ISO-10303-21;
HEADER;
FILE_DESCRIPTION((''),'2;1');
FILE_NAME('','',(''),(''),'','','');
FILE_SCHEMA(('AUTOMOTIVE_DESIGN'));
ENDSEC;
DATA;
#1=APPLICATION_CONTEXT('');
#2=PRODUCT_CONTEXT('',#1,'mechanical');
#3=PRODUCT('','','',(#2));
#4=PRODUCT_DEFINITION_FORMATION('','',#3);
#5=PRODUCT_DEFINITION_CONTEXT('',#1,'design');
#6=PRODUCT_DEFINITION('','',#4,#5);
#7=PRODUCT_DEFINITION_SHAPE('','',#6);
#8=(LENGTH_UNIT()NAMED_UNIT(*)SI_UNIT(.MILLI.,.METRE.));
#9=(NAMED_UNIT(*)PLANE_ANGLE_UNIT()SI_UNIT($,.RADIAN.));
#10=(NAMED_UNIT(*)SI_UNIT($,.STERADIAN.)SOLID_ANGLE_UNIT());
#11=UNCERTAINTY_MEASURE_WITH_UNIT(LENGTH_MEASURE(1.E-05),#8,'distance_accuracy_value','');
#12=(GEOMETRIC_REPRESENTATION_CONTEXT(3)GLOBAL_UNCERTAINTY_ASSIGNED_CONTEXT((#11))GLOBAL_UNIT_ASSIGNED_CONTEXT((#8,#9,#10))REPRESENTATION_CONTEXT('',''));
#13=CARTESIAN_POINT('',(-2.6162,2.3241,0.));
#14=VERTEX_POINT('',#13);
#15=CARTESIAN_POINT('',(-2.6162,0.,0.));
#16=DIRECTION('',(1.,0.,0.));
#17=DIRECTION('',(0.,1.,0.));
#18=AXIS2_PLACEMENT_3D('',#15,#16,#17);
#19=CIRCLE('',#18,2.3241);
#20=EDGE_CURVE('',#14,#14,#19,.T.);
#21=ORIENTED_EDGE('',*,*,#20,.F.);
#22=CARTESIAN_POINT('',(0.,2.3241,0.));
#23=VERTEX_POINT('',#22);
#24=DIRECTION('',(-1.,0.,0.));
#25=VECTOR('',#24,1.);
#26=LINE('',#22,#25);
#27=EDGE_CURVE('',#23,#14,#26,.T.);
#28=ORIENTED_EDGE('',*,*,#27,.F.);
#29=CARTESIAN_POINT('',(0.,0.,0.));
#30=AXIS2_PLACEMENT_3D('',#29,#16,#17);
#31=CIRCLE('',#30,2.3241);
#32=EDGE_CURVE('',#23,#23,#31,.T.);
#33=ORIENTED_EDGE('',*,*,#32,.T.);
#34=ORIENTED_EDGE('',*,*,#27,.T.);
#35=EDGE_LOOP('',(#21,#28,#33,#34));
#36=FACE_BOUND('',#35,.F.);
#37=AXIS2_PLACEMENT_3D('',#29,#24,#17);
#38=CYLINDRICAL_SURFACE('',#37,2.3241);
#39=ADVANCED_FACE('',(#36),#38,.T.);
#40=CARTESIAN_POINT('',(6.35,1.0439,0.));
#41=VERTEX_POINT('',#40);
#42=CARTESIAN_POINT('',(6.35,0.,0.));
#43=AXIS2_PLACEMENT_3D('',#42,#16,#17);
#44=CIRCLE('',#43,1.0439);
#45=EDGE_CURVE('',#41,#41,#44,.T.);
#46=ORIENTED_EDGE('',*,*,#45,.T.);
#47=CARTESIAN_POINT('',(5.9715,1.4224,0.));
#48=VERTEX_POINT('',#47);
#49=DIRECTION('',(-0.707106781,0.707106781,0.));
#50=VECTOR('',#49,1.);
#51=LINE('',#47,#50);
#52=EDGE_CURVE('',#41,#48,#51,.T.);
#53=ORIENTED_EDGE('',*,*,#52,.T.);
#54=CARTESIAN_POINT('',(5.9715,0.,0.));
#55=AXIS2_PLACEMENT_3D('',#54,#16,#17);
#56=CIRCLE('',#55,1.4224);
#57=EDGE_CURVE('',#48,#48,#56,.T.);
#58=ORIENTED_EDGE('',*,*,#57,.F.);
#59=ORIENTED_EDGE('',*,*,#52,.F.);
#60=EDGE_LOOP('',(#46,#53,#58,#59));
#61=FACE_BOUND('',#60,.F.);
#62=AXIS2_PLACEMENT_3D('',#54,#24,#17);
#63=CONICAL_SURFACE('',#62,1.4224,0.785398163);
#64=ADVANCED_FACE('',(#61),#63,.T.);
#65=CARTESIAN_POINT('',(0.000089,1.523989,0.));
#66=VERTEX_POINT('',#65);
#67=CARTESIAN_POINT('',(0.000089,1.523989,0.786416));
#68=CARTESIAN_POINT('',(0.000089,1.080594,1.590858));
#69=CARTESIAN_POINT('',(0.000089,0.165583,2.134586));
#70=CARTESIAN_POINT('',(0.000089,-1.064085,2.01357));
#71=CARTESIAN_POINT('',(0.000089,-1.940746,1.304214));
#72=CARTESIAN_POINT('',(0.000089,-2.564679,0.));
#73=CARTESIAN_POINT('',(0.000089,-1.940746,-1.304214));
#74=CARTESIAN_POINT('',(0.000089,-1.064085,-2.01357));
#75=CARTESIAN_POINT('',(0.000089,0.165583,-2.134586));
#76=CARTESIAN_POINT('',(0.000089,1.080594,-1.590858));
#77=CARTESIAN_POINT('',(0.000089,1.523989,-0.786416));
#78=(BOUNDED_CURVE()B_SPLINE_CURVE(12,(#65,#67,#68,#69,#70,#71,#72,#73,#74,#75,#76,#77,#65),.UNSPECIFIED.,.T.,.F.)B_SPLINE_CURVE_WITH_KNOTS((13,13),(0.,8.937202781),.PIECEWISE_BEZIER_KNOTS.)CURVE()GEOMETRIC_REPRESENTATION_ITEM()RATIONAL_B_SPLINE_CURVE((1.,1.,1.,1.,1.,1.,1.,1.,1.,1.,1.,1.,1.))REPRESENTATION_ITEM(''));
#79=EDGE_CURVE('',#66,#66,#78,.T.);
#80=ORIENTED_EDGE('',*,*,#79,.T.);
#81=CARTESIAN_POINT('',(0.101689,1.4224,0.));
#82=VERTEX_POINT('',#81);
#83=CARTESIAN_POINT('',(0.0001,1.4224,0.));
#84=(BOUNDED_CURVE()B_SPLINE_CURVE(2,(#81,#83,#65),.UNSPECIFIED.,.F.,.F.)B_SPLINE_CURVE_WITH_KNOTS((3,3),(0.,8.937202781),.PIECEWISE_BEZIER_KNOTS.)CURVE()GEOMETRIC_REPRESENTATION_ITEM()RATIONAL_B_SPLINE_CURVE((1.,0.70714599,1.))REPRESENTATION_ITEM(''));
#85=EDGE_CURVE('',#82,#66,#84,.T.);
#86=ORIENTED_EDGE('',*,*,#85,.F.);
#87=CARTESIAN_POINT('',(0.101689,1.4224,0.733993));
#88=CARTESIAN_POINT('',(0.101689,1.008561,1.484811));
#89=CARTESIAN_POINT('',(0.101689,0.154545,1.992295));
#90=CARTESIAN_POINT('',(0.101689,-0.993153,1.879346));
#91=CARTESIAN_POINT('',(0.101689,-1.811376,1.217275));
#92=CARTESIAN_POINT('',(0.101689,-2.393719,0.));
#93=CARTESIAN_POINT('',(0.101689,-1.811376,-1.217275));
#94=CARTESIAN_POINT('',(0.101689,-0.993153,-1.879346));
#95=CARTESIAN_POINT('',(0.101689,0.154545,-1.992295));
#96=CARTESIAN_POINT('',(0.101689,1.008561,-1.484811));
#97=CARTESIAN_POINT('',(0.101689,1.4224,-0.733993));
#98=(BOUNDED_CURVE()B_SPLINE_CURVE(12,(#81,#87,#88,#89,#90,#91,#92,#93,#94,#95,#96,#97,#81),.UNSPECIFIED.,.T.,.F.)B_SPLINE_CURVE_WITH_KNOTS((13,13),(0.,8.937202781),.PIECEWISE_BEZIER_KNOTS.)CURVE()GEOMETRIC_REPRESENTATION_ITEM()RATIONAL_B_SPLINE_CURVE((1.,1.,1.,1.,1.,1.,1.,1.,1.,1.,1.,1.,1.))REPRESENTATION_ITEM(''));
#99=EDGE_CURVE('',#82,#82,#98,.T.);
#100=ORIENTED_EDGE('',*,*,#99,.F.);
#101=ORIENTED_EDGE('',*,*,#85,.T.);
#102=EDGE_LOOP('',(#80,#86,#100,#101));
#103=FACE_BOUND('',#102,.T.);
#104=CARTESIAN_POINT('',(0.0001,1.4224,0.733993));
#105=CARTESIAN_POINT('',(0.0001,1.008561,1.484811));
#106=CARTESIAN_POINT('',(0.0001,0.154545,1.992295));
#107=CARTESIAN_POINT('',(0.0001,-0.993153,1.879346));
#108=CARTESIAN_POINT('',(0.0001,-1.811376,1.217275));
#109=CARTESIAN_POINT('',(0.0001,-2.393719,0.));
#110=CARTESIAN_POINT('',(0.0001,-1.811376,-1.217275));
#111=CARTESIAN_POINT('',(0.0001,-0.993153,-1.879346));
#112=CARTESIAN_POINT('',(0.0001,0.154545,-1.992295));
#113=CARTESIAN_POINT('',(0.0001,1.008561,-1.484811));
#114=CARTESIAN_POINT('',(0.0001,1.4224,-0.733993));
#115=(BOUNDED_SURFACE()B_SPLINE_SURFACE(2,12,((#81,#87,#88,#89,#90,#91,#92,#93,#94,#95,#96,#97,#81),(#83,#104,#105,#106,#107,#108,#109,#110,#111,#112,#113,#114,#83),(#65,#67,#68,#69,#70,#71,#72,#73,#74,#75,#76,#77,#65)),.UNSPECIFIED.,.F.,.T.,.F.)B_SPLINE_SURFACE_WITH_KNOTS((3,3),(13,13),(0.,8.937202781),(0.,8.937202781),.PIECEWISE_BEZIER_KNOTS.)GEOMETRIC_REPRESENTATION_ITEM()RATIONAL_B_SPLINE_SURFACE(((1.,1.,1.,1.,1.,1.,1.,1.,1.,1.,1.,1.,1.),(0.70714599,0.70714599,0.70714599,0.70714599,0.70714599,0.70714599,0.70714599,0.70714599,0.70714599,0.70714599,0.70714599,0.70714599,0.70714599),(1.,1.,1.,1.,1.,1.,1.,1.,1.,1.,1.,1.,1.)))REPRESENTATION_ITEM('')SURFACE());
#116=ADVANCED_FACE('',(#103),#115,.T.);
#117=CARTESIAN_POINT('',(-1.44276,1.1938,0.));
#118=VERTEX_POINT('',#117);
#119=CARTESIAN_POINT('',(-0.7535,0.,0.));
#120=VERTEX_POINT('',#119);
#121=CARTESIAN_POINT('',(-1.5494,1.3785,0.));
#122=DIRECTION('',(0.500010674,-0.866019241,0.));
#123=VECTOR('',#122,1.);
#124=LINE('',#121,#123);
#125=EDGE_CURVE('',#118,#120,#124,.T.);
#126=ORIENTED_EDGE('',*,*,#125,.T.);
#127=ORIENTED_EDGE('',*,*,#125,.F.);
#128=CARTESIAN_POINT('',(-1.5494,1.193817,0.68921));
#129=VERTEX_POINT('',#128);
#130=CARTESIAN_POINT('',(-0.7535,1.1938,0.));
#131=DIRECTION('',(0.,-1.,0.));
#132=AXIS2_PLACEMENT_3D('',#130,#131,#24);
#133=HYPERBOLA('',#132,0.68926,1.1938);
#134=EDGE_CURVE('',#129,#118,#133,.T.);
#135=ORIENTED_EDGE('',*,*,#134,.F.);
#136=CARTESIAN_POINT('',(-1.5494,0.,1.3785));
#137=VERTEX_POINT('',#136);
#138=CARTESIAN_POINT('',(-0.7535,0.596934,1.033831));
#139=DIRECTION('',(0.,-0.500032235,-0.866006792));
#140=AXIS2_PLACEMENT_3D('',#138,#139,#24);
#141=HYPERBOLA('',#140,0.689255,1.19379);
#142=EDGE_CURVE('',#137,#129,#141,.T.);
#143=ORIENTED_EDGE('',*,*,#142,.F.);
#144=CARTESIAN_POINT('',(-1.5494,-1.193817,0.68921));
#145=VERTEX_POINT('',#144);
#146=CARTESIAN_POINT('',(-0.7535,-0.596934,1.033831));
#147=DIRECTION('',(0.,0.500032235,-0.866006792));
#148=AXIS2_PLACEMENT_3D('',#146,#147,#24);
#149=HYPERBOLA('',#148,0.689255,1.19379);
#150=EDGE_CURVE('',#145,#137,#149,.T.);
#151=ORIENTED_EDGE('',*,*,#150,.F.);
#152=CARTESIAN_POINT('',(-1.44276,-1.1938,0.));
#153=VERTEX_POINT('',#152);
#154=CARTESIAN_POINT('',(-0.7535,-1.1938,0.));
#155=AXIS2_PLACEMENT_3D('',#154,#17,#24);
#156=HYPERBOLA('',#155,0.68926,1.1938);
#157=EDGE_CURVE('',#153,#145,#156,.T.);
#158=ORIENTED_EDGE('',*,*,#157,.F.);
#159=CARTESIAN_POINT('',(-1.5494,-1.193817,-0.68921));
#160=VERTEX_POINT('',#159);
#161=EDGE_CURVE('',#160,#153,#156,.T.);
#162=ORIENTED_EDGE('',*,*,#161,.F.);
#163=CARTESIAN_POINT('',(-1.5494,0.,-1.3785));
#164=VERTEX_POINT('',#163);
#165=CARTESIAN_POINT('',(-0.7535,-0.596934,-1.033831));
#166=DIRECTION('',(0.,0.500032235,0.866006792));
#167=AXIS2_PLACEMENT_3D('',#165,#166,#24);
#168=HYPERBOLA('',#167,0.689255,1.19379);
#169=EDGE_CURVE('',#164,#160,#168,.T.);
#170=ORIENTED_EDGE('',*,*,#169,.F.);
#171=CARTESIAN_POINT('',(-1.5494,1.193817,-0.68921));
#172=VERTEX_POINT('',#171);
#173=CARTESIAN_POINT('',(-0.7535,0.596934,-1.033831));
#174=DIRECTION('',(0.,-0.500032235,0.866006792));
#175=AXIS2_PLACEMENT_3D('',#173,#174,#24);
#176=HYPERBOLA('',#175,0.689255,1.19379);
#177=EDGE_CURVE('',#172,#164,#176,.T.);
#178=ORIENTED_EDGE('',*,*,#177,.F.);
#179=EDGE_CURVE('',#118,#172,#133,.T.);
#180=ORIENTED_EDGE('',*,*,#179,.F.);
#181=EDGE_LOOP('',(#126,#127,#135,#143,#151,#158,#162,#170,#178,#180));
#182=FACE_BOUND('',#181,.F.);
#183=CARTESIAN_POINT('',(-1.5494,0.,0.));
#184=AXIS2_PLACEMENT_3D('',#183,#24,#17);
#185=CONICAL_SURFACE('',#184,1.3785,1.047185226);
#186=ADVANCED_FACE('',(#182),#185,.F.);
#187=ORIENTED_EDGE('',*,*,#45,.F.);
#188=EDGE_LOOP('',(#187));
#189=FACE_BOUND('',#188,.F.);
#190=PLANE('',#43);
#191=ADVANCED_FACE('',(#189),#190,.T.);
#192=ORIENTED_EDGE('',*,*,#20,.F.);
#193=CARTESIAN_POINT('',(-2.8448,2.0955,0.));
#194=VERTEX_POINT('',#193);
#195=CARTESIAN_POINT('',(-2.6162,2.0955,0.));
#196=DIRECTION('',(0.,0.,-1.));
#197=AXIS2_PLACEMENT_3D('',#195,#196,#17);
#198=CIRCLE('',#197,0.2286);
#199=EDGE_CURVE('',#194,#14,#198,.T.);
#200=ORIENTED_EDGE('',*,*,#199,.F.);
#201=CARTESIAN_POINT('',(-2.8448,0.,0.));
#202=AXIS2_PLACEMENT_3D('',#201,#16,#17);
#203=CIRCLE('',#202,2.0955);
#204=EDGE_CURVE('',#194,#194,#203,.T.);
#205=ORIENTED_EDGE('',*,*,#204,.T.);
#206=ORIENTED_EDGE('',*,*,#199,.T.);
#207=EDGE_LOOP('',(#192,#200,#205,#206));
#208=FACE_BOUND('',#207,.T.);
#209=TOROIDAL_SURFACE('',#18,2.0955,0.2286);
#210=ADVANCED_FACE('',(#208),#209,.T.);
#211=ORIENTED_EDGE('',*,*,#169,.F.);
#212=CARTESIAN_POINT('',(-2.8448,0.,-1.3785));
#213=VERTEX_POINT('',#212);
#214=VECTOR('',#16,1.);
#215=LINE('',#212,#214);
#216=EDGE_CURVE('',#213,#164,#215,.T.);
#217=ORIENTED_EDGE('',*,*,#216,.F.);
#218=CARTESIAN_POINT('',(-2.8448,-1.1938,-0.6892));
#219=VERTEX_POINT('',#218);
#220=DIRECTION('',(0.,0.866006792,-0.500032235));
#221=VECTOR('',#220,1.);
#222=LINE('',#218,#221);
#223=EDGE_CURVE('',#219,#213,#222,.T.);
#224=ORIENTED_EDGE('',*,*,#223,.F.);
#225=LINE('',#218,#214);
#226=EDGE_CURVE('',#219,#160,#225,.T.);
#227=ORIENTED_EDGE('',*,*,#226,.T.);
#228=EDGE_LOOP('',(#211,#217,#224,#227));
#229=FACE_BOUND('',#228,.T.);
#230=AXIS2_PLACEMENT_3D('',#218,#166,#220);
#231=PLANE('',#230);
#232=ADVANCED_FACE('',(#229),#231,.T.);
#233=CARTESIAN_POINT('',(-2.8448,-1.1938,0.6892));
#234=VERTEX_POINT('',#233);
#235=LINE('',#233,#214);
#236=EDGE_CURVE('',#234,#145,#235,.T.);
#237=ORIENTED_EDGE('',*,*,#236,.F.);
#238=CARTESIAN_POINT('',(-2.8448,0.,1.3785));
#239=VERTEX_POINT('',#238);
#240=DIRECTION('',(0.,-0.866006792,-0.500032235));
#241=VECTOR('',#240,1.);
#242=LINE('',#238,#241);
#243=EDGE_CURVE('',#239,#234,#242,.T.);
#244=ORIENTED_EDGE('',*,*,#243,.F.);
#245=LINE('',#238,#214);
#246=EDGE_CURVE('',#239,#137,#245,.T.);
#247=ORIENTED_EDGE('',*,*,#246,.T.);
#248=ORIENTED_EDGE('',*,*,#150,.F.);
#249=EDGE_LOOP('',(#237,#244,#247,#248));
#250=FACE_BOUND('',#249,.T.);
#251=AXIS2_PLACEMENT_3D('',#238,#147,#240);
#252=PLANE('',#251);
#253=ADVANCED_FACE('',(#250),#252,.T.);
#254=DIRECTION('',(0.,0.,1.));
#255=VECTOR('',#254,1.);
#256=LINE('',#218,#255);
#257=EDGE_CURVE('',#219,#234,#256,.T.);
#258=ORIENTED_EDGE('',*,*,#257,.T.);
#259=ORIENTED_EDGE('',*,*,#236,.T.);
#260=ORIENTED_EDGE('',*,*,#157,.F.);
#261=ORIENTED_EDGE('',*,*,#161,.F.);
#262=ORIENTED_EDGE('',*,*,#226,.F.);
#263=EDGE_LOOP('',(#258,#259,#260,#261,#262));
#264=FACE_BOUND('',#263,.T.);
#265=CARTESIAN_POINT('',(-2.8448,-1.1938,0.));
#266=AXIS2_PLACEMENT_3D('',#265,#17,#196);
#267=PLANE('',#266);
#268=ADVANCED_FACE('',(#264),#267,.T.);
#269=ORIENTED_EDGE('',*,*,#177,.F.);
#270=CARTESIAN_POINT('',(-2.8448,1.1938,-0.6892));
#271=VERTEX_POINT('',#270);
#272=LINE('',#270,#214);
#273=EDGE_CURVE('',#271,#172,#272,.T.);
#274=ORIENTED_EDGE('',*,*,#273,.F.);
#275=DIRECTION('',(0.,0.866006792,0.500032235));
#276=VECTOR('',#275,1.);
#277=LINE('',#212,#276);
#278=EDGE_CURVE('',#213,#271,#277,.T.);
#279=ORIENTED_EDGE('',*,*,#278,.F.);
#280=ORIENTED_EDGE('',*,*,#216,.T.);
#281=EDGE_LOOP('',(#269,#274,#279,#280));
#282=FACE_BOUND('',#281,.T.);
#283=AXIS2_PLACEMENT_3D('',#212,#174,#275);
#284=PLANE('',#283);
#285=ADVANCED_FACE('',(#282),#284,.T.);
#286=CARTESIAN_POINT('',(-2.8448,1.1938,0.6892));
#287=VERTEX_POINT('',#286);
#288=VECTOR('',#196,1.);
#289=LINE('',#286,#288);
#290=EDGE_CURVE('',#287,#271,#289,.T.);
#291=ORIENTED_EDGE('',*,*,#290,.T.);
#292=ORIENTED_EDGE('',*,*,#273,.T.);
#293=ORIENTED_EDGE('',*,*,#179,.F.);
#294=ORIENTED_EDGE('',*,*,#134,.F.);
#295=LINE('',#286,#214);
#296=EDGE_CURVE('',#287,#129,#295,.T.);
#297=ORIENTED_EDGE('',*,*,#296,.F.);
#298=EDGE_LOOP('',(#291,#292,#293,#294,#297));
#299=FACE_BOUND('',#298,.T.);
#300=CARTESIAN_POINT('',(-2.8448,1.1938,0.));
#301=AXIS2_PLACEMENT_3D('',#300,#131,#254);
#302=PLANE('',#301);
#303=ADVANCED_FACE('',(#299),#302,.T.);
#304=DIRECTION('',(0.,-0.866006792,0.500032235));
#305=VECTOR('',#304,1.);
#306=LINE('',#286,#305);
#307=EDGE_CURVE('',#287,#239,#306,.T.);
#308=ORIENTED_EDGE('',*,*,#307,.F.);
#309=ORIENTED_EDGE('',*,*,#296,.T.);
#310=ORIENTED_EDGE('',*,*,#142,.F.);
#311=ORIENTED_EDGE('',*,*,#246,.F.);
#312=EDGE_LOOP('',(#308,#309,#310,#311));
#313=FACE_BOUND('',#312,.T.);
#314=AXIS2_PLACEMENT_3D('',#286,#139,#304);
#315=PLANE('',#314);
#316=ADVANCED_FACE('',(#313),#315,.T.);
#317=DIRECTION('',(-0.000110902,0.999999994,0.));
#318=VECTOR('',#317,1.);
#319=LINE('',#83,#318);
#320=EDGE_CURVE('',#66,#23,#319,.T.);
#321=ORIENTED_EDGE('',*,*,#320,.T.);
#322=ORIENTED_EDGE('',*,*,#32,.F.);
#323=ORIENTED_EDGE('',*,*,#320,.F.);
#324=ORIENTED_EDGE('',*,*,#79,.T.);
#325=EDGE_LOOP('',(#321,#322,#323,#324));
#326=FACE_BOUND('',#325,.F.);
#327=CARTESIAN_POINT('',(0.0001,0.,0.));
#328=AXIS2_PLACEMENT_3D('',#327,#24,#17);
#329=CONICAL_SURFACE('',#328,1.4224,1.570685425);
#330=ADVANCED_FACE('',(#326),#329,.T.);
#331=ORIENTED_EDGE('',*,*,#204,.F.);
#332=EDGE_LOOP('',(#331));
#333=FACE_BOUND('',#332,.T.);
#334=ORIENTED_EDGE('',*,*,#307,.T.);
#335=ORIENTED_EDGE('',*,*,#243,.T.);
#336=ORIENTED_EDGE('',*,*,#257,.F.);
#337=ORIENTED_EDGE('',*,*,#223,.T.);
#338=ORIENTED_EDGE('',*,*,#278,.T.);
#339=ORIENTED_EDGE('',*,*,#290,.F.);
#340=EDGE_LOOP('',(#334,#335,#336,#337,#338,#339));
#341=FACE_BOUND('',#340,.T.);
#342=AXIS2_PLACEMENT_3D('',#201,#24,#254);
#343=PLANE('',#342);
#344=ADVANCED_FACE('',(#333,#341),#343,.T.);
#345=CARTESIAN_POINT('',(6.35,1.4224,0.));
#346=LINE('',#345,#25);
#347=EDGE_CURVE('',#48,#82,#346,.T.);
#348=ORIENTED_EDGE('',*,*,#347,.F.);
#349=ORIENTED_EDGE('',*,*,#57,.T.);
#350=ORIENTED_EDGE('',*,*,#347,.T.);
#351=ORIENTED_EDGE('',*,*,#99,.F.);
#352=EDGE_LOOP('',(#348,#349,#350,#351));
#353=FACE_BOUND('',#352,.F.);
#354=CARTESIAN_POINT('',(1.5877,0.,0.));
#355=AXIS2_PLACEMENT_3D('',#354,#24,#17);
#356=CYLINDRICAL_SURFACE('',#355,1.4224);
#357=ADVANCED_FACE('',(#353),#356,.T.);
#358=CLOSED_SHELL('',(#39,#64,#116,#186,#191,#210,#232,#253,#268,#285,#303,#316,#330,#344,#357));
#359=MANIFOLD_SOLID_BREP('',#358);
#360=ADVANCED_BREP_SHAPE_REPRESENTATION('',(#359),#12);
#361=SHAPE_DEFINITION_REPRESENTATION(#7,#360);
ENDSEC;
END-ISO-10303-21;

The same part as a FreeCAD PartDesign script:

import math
import FreeCAD as App
import Part
import Sketcher

V = App.Vector
Q = App.Units.Quantity


def edges_at(feature, points):
    """Names of the edges that pass closest to the given points."""
    edges = feature.Shape.Edges
    near = lambda p: min(range(len(edges)), key=lambda i: edges[i].distToShape(Part.Vertex(*p))[0])
    return sorted({f"Edge{near(p) + 1}" for p in points})


def add_polygon(sketch, points):
    """Adds a closed chain of lines whose ends are joined by coincident constraints."""
    first, n = sketch.GeometryCount, len(points)
    for a, b in zip(points, points[1:] + points[:1]):
        sketch.addGeometry(Part.LineSegment(App.Vector(*a, 0), App.Vector(*b, 0)), False)
    for i in range(n):
        sketch.addConstraint(Sketcher.Constraint("Coincident", first + i, 2, first + (i + 1) % n, 1))

doc = App.newDocument("Part")
body = doc.addObject("PartDesign::Body", "Body")

sketch1 = body.newObject("Sketcher::SketchObject", "Sketch")
sketch1.AttachmentSupport = (doc.getObject("XY_Plane"), [""])
sketch1.MapMode = "FlatFace"
add_polygon(sketch1, [(-1.5, 1.4), (-0.8, 0), (6.3, 0), (6.3, 1.4), (0, 1.4), (0, 2.3), (-2.8, 2.3), (-2.8, 1.4)])
sketch1.addConstraint([
    Sketcher.Constraint("Horizontal", 1),
    Sketcher.Constraint("Vertical", 2),
    Sketcher.Constraint("Horizontal", 3),
    Sketcher.Constraint("Vertical", 4),
    Sketcher.Constraint("Horizontal", 5),
    Sketcher.Constraint("Vertical", 6),
    Sketcher.Constraint("Horizontal", 7),
    Sketcher.Constraint("PointOnObject", 0, 2, -1),
    Sketcher.Constraint("PointOnObject", 3, 2, -2),
    Sketcher.Constraint("DistanceX", 3, 2, 3, 1, Q("0.25 in")),
    Sketcher.Constraint("DistanceX", 5, 2, 5, 1, Q("0.112 in")),
    Sketcher.Constraint("DistanceX", 7, 1, 7, 2, Q("0.051 in")),
    Sketcher.Constraint("Angle", 0, Q("-59.9993 deg")),
    Sketcher.Constraint("DistanceY", 2, 1, 2, 2, Q("0.056 in")),
    Sketcher.Constraint("DistanceY", 4, 1, 4, 2, Q("0.0355 in")),
    Sketcher.Constraint("DistanceX", 1, 1, 1, 2, Q("7.1035 mm")),
])
revolution = body.newObject("PartDesign::Revolution", "Revolution")
revolution.Profile = sketch1
revolution.ReferenceAxis = (sketch1, ["H_Axis"])
revolution.Angle = 360

sketch2 = body.newObject("Sketcher::SketchObject", "Sketch001")
sketch2.AttachmentSupport = (doc.getObject("YZ_Plane"), [""])
sketch2.MapMode = "FlatFace"
sketch2.AttachmentOffset = App.Placement(V(0, 0, -0.112 * 25.4), App.Rotation())
sketch2.addGeometry([
    Part.LineSegment(V(1.2, 0.7, 0), V(0, 1.4, 0)),
    Part.ArcOfCircle(Part.Circle(V(0, 0, 0), V(0, 0, 1), 1.4), math.radians(30), math.radians(90)),
    Part.ArcOfCircle(Part.Circle(V(0, 0, 0), V(0, 0, 1), 1.4), math.radians(90), math.radians(150)),
    Part.LineSegment(V(0, 1.4, 0), V(-1.2, 0.7, 0)),
    Part.ArcOfCircle(Part.Circle(V(0, 0, 0), V(0, 0, 1), 1.4), math.radians(-30), math.radians(30)),
    Part.LineSegment(V(1.2, 0.7, 0), V(1.2, -0.7, 0)),
    Part.LineSegment(V(-1.2, 0.7, 0), V(-1.2, -0.7, 0)),
    Part.ArcOfCircle(Part.Circle(V(0, 0, 0), V(0, 0, 1), 1.4), math.radians(150), math.radians(210)),
    Part.LineSegment(V(-1.2, -0.7, 0), V(0, -1.4, 0)),
    Part.ArcOfCircle(Part.Circle(V(0, 0, 0), V(0, 0, 1), 1.4), math.radians(-150), math.radians(-90)),
    Part.ArcOfCircle(Part.Circle(V(0, 0, 0), V(0, 0, 1), 1.4), math.radians(-90), math.radians(-30)),
    Part.LineSegment(V(0, -1.4, 0), V(1.2, -0.7, 0)),
], False)
sketch2.addConstraint([
    Sketcher.Constraint("Coincident", 0, 1, 1, 1),
    Sketcher.Constraint("Coincident", 1, 2, 0, 2),
    Sketcher.Constraint("Coincident", 2, 1, 3, 1),
    Sketcher.Constraint("Coincident", 3, 2, 2, 2),
    Sketcher.Constraint("Coincident", 4, 1, 5, 2),
    Sketcher.Constraint("Coincident", 5, 1, 4, 2),
    Sketcher.Constraint("Coincident", 6, 1, 7, 1),
    Sketcher.Constraint("Coincident", 7, 2, 6, 2),
    Sketcher.Constraint("Coincident", 8, 1, 9, 1),
    Sketcher.Constraint("Coincident", 9, 2, 8, 2),
    Sketcher.Constraint("Coincident", 10, 1, 11, 1),
    Sketcher.Constraint("Coincident", 11, 2, 10, 2),
    Sketcher.Constraint("Vertical", 5),
    Sketcher.Constraint("Vertical", 6),
    Sketcher.Constraint("Coincident", 1, 3, -1, 1),
    Sketcher.Constraint("Coincident", 2, 3, -1, 1),
    Sketcher.Constraint("Coincident", 4, 3, -1, 1),
    Sketcher.Constraint("Coincident", 7, 3, -1, 1),
    Sketcher.Constraint("Coincident", 9, 3, -1, 1),
    Sketcher.Constraint("Coincident", 10, 3, -1, 1),
    Sketcher.Constraint("Coincident", 2, 1, 1, 2),
    Sketcher.Constraint("Coincident", 5, 1, 0, 1),
    Sketcher.Constraint("Coincident", 6, 1, 3, 2),
    Sketcher.Constraint("Coincident", 8, 1, 7, 2),
    Sketcher.Constraint("Coincident", 10, 1, 9, 2),
    Sketcher.Constraint("PointOnObject", 1, 2, -2),
    Sketcher.Constraint("PointOnObject", 9, 2, -2),
    Sketcher.Constraint("Parallel", 0, 8),
    Sketcher.Constraint("Parallel", 3, 11),
    Sketcher.Constraint("Radius", 1, Q("1.3785 mm")),
    Sketcher.Constraint("DistanceX", -1, 1, 0, 1, Q("0.047 in")),
])
pad1 = body.newObject("PartDesign::Pad", "Pad")
pad1.Profile = sketch2
pad1.Type = "UpToFirst"
doc.recompute()

fillet = body.newObject("PartDesign::Fillet", "Fillet")
fillet.Base = (pad1, edges_at(pad1, [(-2.845, -2.324, 0)]))
fillet.Radius = Q("0.009 in")
doc.recompute()

chamfer = body.newObject("PartDesign::Chamfer", "Chamfer")
chamfer.Base = (fillet, edges_at(fillet, [(6.35, -1.422, 0)]))
chamfer.ChamferType = "Two distances"
chamfer.Size = Q("0.0149016 in")
chamfer.Size2 = Q("0.0149016 in")
doc.recompute()

fillet2 = body.newObject("PartDesign::Fillet", "Fillet001")
fillet2.Base = (chamfer, edges_at(chamfer, [(0, -1.422, 0)]))
fillet2.Radius = Q("0.004 in")

doc.recompute()
